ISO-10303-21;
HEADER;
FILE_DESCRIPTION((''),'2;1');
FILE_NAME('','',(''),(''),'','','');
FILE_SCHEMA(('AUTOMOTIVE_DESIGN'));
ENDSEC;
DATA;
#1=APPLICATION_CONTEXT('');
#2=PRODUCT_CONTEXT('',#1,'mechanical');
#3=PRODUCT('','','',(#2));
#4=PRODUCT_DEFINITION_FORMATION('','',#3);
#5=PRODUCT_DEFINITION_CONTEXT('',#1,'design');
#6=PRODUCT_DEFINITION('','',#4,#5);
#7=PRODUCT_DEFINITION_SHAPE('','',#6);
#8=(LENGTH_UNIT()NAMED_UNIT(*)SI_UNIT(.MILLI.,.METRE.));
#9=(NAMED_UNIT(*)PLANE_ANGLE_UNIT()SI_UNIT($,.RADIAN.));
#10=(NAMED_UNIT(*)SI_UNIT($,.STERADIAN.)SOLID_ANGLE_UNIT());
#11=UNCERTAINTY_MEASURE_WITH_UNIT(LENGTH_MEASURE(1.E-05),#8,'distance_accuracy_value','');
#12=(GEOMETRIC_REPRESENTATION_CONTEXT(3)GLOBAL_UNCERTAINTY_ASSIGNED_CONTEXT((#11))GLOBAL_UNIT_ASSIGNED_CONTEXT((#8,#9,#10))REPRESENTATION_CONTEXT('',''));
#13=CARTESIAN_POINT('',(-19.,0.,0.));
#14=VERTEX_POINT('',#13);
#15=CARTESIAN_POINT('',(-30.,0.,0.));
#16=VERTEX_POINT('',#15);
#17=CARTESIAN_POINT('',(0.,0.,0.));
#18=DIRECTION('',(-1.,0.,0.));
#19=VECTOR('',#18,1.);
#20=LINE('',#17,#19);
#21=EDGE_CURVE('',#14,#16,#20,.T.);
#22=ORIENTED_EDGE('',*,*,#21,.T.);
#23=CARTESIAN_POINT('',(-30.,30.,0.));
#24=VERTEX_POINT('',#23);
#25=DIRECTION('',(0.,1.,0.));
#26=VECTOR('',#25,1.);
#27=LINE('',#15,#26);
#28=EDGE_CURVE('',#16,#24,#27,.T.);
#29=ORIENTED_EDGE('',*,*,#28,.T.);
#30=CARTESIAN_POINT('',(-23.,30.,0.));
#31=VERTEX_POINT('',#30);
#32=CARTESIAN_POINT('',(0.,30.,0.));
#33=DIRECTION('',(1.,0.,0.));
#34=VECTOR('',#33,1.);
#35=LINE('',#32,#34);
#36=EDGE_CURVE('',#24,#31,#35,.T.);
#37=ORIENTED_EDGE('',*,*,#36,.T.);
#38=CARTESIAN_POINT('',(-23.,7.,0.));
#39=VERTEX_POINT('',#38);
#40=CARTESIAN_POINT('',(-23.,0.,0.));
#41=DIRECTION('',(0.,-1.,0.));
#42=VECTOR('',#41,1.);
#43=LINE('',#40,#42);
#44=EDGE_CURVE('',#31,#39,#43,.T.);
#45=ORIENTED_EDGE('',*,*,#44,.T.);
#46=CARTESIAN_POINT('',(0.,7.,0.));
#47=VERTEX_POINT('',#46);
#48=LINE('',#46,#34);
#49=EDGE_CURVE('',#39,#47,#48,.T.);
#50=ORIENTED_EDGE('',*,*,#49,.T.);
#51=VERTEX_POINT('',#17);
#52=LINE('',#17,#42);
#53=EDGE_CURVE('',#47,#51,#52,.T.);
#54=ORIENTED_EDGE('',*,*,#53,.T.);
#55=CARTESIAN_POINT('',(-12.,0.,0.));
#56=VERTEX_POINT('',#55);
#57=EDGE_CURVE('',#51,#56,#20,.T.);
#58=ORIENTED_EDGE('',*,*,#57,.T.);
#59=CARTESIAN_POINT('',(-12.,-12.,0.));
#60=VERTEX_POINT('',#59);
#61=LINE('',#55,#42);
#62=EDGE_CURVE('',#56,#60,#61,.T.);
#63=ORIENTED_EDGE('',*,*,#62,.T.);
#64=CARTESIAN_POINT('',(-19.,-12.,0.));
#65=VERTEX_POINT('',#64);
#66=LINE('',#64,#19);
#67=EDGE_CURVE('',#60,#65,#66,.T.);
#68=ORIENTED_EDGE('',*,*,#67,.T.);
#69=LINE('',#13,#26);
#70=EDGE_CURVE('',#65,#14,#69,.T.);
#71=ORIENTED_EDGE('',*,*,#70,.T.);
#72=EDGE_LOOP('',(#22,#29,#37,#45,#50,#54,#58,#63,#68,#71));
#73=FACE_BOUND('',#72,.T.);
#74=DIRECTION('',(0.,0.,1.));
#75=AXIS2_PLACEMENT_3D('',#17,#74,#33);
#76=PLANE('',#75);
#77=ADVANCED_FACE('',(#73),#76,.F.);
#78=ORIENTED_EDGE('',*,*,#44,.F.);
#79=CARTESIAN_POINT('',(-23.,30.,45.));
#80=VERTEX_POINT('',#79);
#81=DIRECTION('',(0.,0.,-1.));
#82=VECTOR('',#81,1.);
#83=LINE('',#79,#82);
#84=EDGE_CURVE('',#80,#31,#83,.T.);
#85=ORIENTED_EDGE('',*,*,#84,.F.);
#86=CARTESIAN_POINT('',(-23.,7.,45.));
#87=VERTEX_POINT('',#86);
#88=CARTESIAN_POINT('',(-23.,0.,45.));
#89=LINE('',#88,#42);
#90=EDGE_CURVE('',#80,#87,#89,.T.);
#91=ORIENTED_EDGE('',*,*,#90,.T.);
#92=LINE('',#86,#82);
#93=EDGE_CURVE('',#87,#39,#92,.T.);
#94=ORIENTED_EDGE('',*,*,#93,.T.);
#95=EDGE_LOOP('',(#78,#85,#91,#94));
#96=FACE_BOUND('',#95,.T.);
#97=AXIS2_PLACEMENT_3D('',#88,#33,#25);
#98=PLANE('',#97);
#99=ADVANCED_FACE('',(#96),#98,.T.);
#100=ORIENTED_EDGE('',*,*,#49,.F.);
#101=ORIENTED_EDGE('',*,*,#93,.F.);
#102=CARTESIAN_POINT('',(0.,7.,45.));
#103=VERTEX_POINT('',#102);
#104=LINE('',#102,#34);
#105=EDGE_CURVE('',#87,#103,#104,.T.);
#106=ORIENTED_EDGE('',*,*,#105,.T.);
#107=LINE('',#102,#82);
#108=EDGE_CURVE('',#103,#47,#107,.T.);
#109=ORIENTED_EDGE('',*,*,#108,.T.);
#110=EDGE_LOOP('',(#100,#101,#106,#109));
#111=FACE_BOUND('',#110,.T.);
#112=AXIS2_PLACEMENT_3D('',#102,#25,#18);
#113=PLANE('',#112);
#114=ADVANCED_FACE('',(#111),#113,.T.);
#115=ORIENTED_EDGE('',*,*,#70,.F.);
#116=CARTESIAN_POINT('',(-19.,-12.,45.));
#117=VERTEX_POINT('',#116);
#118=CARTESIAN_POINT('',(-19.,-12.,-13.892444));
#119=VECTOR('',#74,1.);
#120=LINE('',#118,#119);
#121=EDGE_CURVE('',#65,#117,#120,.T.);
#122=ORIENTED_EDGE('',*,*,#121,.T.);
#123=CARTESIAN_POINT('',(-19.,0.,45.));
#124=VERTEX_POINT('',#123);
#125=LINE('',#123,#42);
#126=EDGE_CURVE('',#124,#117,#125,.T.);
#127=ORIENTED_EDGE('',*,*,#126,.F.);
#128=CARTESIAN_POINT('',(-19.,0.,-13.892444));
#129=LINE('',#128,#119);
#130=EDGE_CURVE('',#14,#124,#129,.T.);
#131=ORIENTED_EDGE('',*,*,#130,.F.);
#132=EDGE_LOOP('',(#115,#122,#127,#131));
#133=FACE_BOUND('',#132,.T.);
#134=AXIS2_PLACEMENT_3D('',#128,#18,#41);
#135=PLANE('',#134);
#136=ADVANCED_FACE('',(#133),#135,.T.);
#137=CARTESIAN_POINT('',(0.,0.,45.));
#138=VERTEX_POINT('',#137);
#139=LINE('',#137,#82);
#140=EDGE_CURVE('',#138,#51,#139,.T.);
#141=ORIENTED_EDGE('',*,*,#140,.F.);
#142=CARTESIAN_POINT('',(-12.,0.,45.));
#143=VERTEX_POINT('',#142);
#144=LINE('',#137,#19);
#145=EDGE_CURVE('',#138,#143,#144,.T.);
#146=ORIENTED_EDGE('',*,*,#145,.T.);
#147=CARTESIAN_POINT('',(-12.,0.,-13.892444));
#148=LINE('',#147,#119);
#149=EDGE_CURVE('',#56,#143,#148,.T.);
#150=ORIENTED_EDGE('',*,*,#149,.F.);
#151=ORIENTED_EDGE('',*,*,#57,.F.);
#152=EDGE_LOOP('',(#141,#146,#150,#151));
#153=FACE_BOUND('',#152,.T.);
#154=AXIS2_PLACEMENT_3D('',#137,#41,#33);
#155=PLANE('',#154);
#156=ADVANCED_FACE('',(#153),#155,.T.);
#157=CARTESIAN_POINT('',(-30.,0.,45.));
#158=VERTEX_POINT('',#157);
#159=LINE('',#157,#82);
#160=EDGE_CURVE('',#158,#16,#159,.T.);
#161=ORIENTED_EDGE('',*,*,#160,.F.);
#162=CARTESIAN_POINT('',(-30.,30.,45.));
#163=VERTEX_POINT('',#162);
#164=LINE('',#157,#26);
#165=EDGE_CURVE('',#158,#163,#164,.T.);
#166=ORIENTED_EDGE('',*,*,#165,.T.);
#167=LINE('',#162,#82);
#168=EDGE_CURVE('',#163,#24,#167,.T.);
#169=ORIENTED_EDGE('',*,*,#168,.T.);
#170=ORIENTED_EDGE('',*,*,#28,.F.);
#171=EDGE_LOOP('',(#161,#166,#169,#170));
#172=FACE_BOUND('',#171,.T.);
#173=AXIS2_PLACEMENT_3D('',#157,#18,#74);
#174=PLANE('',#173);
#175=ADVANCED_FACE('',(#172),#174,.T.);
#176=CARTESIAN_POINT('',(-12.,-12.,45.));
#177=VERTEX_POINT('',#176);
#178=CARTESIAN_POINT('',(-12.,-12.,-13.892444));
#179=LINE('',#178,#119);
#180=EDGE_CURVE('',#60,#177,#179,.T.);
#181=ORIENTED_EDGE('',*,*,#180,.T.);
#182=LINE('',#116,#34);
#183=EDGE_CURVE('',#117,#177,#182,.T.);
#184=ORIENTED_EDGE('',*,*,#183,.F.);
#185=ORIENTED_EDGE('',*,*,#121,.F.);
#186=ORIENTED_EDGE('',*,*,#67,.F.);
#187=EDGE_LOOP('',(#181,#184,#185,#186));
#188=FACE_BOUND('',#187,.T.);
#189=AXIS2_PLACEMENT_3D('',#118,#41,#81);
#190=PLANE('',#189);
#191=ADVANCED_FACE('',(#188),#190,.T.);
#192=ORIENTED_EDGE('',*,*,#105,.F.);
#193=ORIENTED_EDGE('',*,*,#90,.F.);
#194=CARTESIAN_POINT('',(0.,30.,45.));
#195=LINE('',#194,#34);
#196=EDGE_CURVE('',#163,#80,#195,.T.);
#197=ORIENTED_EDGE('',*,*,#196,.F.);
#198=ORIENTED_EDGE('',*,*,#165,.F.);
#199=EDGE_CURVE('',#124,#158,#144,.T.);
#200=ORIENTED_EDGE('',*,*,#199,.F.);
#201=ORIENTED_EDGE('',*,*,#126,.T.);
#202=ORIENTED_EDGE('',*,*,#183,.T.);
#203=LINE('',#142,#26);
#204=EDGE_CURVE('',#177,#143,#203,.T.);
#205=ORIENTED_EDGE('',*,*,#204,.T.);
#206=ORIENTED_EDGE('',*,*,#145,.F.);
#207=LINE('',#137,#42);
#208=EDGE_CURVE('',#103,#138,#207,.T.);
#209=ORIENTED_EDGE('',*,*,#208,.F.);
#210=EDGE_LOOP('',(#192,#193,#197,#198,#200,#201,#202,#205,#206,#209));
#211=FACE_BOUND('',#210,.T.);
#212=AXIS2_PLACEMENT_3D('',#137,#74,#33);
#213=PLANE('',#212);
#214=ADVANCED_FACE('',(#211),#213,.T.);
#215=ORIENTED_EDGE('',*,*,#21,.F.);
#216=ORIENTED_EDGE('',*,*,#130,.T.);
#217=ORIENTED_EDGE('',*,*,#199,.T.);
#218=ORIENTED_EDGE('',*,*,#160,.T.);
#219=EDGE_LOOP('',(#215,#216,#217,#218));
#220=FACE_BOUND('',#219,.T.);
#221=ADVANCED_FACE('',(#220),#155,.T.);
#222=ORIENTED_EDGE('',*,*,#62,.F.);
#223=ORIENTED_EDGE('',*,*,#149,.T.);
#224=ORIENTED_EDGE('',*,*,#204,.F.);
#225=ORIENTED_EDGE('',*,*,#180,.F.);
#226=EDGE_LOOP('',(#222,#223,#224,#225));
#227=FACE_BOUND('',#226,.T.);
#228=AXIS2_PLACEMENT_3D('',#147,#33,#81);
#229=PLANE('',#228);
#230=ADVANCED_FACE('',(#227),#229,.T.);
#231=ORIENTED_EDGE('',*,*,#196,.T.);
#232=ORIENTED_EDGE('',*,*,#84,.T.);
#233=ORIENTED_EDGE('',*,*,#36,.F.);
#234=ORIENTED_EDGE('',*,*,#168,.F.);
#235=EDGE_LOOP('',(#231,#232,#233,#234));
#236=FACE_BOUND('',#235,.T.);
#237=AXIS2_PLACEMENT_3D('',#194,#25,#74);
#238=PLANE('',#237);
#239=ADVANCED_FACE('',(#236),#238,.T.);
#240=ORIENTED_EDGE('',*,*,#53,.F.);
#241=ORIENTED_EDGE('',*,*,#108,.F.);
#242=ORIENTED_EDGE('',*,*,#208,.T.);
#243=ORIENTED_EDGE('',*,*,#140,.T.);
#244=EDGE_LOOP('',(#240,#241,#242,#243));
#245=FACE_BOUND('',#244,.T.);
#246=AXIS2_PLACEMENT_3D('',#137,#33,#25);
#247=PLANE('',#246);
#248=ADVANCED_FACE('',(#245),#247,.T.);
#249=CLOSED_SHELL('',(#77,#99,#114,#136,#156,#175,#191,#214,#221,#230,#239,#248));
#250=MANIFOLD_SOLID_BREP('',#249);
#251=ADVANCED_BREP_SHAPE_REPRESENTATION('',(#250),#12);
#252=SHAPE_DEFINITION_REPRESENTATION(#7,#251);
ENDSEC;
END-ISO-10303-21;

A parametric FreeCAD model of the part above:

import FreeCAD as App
import Part
import Sketcher
from FreeCAD import Vector
Q = App.Units.Quantity

doc = App.newDocument("Part")
params = doc.addObject("Spreadsheet::Sheet", "Params")
for row, (alias, value) in enumerate([
    ("sketch1_width", "30 mm"),
    ("sketch1_width2", "23 mm"),
    ("pad1_length", "45 mm"),
    ("sketch2_width", "7 mm"),
    ("sketch2_height", "12 mm"),
    ("pad2_length", "45 mm"),
], start=1):
    params.set(f"A{row}", alias)
    params.set(f"B{row}", "=" + value)
    params.setAlias(f"B{row}", alias)

body = doc.addObject("PartDesign::Body", "Body")

# Sketch on XY plane
sketch1 = doc.addObject("Sketcher::SketchObject", "Sketch")
body.addObject(sketch1)
sketch1.AttachmentSupport = (doc.XY_Plane, [""])
sketch1.MapMode = "FlatFace"
sketch1.addGeometry(Part.LineSegment(Vector(-30, 0, 0), Vector(0, 0, 0)), False)
sketch1.addGeometry(Part.LineSegment(Vector(0, 0, 0), Vector(0, 7, 0)), False)
sketch1.addGeometry(Part.LineSegment(Vector(0, 7, 0), Vector(-23, 7, 0)), False)
sketch1.addGeometry(Part.LineSegment(Vector(-23, 7, 0), Vector(-23, 30, 0)), False)
sketch1.addGeometry(Part.LineSegment(Vector(-23, 30, 0), Vector(-30, 30, 0)), False)
sketch1.addGeometry(Part.LineSegment(Vector(-30, 30, 0), Vector(-30, 0, 0)), False)
sketch1.addConstraint(Sketcher.Constraint("Coincident", 0, 2, 1, 1))
sketch1.addConstraint(Sketcher.Constraint("Coincident", 1, 2, 2, 1))
sketch1.addConstraint(Sketcher.Constraint("Coincident", 2, 2, 3, 1))
sketch1.addConstraint(Sketcher.Constraint("Coincident", 3, 2, 4, 1))
sketch1.addConstraint(Sketcher.Constraint("Coincident", 4, 2, 5, 1))
sketch1.addConstraint(Sketcher.Constraint("Coincident", 5, 2, 0, 1))
sketch1.addConstraint(Sketcher.Constraint("Horizontal", 0))
sketch1.addConstraint(Sketcher.Constraint("Vertical", 1))
sketch1.addConstraint(Sketcher.Constraint("Horizontal", 2))
sketch1.addConstraint(Sketcher.Constraint("Vertical", 3))
sketch1.addConstraint(Sketcher.Constraint("Horizontal", 4))
sketch1.addConstraint(Sketcher.Constraint("Vertical", 5))
sketch1.addConstraint(Sketcher.Constraint("Coincident", 0, 2, -1, 1))
sketch1.addConstraint(Sketcher.Constraint("Equal", 4, 1))
sketch1.addConstraint(Sketcher.Constraint("Equal", 2, 3))
sketch1.addConstraint(Sketcher.Constraint("DistanceX", 0, 1, 0, 2, Q("30 mm")))
sketch1.addConstraint(Sketcher.Constraint("DistanceX", 2, 2, 2, 1, Q("23 mm")))
sketch1.setExpression("Constraints[15]", "Params.sketch1_width")
sketch1.setExpression("Constraints[16]", "Params.sketch1_width2")
pad1 = doc.addObject("PartDesign::Pad", "Pad")
body.addObject(pad1)
pad1.Profile = sketch1
pad1.setExpression("Length", "Params.pad1_length")

# Sketch on XY plane
sketch2 = doc.addObject("Sketcher::SketchObject", "Sketch001")
body.addObject(sketch2)
sketch2.AttachmentSupport = (doc.XY_Plane, [""])
sketch2.MapMode = "FlatFace"
sketch2.AttachmentOffset = App.Placement(Vector(0, 0, 45), App.Rotation())
sketch2.addGeometry(Part.LineSegment(Vector(-19, 0, 0), Vector(-19, -12, 0)), False)
sketch2.addGeometry(Part.LineSegment(Vector(-19, -12, 0), Vector(-12, -12, 0)), False)
sketch2.addGeometry(Part.LineSegment(Vector(-12, -12, 0), Vector(-12, 0, 0)), False)
sketch2.addGeometry(Part.LineSegment(Vector(-12, 0, 0), Vector(-19, 0, 0)), False)
sketch2.addConstraint(Sketcher.Constraint("Coincident", 0, 2, 1, 1))
sketch2.addConstraint(Sketcher.Constraint("Coincident", 1, 2, 2, 1))
sketch2.addConstraint(Sketcher.Constraint("Coincident", 2, 2, 3, 1))
sketch2.addConstraint(Sketcher.Constraint("Coincident", 3, 2, 0, 1))
sketch2.addConstraint(Sketcher.Constraint("Vertical", 0))
sketch2.addConstraint(Sketcher.Constraint("Horizontal", 1))
sketch2.addConstraint(Sketcher.Constraint("Vertical", 2))
sketch2.addConstraint(Sketcher.Constraint("Horizontal", 3))
sketch2.addConstraint(Sketcher.Constraint("PointOnObject", 2, 2, -1))
sketch2.addConstraint(Sketcher.Constraint("DistanceX", 1, 1, 1, 2, Q("7 mm")))
sketch2.addConstraint(Sketcher.Constraint("DistanceY", 0, 2, 0, 1, Q("12 mm")))
sketch2.addConstraint(Sketcher.Constraint("DistanceX", 0, 2, -1, 1, Q("19 mm")))
sketch2.setExpression("Constraints[9]", "Params.sketch2_width")
sketch2.setExpression("Constraints[10]", "Params.sketch2_height")
pad2 = doc.addObject("PartDesign::Pad", "Pad001")
body.addObject(pad2)
pad2.Profile = sketch2
pad2.setExpression("Length", "Params.pad2_length")
pad2.Reversed = True

doc.recompute()
